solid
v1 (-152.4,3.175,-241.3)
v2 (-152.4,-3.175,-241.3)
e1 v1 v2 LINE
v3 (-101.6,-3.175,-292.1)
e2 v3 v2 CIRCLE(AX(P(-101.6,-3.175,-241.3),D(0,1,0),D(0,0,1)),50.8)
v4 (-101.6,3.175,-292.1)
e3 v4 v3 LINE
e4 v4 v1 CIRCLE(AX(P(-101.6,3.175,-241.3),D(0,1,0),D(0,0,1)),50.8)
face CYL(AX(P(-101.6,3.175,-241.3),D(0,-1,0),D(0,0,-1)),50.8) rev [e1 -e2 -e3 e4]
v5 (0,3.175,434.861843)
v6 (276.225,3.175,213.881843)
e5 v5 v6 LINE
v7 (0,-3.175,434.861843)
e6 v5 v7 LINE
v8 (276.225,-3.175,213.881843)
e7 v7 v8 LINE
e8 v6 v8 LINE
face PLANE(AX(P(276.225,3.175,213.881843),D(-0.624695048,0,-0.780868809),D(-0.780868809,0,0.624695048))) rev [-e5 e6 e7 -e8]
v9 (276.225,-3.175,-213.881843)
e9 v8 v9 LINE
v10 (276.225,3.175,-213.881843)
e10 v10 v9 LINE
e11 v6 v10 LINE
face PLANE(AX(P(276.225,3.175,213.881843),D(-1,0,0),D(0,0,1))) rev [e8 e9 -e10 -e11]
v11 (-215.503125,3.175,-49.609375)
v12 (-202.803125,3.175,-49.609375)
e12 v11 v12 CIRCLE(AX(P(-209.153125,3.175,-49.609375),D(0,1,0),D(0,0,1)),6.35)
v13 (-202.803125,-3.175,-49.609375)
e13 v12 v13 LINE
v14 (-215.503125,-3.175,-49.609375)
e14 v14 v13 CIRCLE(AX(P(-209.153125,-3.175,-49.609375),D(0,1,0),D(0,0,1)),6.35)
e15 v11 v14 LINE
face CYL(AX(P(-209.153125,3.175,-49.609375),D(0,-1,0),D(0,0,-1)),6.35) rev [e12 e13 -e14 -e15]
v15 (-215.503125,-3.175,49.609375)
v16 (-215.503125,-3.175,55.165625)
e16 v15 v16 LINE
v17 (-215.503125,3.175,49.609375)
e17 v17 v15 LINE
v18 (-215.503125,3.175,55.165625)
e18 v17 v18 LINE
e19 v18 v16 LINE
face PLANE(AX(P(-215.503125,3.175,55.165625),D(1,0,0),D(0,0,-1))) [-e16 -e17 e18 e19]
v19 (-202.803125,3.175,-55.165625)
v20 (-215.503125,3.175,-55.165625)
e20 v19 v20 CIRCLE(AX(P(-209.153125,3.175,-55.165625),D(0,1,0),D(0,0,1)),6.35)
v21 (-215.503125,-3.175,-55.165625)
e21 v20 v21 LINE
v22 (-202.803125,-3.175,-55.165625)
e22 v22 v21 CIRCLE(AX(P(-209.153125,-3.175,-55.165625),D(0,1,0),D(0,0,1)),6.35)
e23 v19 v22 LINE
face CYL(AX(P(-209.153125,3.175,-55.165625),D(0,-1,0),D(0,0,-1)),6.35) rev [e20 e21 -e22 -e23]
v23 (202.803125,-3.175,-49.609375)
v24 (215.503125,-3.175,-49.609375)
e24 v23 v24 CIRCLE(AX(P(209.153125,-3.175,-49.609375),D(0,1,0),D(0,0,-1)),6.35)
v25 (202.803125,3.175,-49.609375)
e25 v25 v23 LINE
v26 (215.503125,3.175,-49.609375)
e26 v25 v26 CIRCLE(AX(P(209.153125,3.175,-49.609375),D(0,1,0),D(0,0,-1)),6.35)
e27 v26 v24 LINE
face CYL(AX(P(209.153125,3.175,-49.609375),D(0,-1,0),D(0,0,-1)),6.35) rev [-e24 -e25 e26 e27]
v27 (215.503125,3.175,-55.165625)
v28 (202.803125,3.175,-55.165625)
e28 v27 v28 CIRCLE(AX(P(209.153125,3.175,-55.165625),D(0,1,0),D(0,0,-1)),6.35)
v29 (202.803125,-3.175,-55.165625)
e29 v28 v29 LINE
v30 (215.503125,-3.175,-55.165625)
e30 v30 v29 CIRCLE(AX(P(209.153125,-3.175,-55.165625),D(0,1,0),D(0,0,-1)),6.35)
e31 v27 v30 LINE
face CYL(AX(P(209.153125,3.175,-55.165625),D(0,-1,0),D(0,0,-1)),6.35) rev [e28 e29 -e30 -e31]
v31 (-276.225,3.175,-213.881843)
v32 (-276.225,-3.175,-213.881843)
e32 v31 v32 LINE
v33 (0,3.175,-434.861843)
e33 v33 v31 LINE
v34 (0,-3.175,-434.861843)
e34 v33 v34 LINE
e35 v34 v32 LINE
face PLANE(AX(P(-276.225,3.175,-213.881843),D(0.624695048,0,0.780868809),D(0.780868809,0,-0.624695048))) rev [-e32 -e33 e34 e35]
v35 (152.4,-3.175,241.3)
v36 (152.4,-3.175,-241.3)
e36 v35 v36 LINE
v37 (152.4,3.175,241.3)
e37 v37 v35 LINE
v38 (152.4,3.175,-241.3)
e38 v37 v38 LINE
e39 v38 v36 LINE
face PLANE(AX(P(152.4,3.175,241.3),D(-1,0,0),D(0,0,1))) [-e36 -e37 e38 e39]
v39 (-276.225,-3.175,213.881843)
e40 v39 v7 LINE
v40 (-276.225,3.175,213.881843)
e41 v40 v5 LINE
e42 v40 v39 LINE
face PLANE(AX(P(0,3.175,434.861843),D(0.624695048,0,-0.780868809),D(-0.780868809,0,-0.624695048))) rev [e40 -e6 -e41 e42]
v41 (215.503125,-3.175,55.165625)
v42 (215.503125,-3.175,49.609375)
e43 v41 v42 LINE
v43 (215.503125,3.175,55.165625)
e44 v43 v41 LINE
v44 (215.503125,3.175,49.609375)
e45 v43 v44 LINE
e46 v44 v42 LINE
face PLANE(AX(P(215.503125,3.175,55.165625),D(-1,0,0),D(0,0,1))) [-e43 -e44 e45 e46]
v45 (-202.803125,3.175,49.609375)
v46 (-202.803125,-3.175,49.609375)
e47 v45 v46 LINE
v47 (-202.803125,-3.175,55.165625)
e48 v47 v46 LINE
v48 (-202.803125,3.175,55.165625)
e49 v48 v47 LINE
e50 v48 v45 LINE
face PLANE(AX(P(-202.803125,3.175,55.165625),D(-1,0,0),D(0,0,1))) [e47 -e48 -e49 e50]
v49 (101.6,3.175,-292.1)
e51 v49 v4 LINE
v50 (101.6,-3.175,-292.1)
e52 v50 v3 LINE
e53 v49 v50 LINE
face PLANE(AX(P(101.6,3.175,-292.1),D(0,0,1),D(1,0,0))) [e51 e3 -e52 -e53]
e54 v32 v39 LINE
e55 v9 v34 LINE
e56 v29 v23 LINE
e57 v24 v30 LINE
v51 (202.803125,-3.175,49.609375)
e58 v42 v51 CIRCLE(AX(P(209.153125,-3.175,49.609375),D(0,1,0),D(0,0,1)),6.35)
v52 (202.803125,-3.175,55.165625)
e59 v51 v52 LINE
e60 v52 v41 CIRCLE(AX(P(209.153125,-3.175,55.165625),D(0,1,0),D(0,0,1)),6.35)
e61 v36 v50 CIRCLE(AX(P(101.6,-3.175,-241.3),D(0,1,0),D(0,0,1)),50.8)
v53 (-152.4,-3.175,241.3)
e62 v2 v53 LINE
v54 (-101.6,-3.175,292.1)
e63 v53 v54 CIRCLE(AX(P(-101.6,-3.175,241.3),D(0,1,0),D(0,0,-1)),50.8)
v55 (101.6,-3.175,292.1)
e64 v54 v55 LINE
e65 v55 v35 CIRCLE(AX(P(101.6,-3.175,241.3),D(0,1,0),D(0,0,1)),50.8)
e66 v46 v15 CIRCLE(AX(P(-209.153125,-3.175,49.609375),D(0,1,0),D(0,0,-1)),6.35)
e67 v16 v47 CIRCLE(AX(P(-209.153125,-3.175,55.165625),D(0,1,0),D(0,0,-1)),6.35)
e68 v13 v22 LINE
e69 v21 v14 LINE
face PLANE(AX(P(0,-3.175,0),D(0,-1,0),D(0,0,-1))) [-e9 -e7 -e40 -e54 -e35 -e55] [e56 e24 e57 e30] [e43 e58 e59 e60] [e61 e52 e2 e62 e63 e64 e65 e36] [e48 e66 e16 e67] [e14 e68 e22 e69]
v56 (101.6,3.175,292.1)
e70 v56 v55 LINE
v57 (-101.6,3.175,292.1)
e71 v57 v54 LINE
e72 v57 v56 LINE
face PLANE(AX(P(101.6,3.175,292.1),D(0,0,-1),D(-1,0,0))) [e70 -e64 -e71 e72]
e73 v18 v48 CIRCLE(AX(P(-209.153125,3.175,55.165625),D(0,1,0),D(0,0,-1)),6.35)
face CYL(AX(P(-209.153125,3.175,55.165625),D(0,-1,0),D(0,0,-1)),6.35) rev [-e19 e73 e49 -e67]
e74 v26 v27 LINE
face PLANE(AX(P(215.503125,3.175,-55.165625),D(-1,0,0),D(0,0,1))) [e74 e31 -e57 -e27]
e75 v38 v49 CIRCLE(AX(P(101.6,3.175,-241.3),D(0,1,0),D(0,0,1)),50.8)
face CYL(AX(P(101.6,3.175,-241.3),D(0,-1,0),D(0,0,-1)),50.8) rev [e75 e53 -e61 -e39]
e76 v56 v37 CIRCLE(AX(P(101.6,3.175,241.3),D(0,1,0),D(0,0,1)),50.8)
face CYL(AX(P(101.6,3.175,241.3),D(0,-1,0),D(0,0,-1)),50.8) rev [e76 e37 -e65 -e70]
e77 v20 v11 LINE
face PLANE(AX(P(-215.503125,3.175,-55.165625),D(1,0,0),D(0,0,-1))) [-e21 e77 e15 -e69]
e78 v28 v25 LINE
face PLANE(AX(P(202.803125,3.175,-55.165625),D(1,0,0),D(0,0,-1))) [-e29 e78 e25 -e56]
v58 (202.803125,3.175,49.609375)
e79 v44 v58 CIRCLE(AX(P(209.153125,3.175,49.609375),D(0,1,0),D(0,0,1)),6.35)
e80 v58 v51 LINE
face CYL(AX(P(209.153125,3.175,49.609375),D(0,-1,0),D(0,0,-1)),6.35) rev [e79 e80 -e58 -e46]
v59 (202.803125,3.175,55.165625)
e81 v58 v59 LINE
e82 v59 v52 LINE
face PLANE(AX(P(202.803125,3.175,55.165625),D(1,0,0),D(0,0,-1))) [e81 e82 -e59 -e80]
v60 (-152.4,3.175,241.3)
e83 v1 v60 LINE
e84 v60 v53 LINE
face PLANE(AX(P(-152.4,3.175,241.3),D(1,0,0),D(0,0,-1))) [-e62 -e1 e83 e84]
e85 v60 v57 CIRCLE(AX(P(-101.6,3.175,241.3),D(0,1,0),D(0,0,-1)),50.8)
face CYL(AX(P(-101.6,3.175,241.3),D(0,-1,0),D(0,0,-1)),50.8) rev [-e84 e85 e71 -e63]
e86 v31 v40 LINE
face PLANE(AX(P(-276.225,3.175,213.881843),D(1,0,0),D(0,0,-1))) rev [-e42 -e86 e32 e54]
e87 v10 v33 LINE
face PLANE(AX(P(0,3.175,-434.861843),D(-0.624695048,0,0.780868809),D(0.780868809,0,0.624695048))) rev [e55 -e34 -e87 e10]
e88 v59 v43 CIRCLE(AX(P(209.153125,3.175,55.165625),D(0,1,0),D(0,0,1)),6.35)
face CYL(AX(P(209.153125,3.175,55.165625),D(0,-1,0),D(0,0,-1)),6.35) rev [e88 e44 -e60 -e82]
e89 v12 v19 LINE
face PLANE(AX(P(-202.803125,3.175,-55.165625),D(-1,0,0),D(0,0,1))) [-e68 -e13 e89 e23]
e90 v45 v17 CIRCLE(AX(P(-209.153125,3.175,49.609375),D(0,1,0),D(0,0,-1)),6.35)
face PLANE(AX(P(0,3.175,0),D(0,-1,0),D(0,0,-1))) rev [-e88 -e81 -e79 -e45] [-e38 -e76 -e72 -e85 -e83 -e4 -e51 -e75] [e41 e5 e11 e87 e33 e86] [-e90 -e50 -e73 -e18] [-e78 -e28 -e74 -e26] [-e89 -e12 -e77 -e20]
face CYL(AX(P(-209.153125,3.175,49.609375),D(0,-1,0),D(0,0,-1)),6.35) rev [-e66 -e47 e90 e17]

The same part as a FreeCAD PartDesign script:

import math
import FreeCAD as App
import Part
import Sketcher
Q = App.Units.Quantity


def add_polygon(sketch, points):
    """Adds a closed chain of lines whose ends are joined by coincident constraints."""
    first, n = sketch.GeometryCount, len(points)
    for a, b in zip(points, points[1:] + points[:1]):
        sketch.addGeometry(Part.LineSegment(App.Vector(*a, 0), App.Vector(*b, 0)), False)
    for i in range(n):
        sketch.addConstraint(Sketcher.Constraint("Coincident", first + i, 2, first + (i + 1) % n, 1))

doc = App.newDocument("Part")
body = doc.addObject("PartDesign::Body", "Body")

# Sketch on XZ plane
sketch1 = doc.addObject("Sketcher::SketchObject", "Sketch")
body.addObject(sketch1)
sketch1.AttachmentSupport = (doc.XZ_Plane, [""])
sketch1.MapMode = "FlatFace"
add_polygon(sketch1, [(0, -435), (-276, -214), (-276, 214), (0, 435), (276, 214), (276, -214)])  # lines 0-5
sketch1.addGeometry(Part.LineSegment(App.Vector(203, 55, 0), App.Vector(203, 50, 0)), False)  # 6
sketch1.addGeometry(Part.ArcOfCircle(Part.Circle(App.Vector(209, 50, 0), App.Vector(0, 0, 1), 6), math.radians(180), math.radians(360)), False)  # 7
sketch1.addGeometry(Part.LineSegment(App.Vector(216, 50, 0), App.Vector(216, 55, 0)), False)  # 8
sketch1.addGeometry(Part.ArcOfCircle(Part.Circle(App.Vector(209, 55, 0), App.Vector(0, 0, 1), 6), math.radians(0), math.radians(180)), False)  # 9
sketch1.addGeometry(Part.ArcOfCircle(Part.Circle(App.Vector(-209, 55, 0), App.Vector(0, 0, 1), 6), math.radians(0), math.radians(180)), False)  # 10
sketch1.addGeometry(Part.LineSegment(App.Vector(-216, 55, 0), App.Vector(-216, 50, 0)), False)  # 11
sketch1.addGeometry(Part.ArcOfCircle(Part.Circle(App.Vector(-209, 50, 0), App.Vector(0, 0, 1), 6), math.radians(180), math.radians(360)), False)  # 12
sketch1.addGeometry(Part.LineSegment(App.Vector(-203, 50, 0), App.Vector(-203, 55, 0)), False)  # 13
sketch1.addGeometry(Part.ArcOfCircle(Part.Circle(App.Vector(209, -55, 0), App.Vector(0, 0, 1), 6), math.radians(180), math.radians(360)), False)  # 14
sketch1.addGeometry(Part.LineSegment(App.Vector(216, -55, 0), App.Vector(216, -50, 0)), False)  # 15
sketch1.addGeometry(Part.ArcOfCircle(Part.Circle(App.Vector(209, -50, 0), App.Vector(0, 0, 1), 6), math.radians(0), math.radians(180)), False)  # 16
sketch1.addGeometry(Part.LineSegment(App.Vector(203, -50, 0), App.Vector(203, -55, 0)), False)  # 17
sketch1.addGeometry(Part.LineSegment(App.Vector(102, 292, 0), App.Vector(-102, 292, 0)), False)  # 18
sketch1.addGeometry(Part.ArcOfCircle(Part.Circle(App.Vector(-102, 241, 0), App.Vector(0, 0, 1), 51), math.radians(90), math.radians(180)), False)  # 19
sketch1.addGeometry(Part.LineSegment(App.Vector(-152, 241, 0), App.Vector(-152, -241, 0)), False)  # 20
sketch1.addGeometry(Part.ArcOfCircle(Part.Circle(App.Vector(-102, -241, 0), App.Vector(0, 0, 1), 51), math.radians(-180), math.radians(-90)), False)  # 21
sketch1.addGeometry(Part.LineSegment(App.Vector(-102, -292, 0), App.Vector(102, -292, 0)), False)  # 22
sketch1.addGeometry(Part.ArcOfCircle(Part.Circle(App.Vector(102, -241, 0), App.Vector(0, 0, 1), 51), math.radians(-90), math.radians(0)), False)  # 23
sketch1.addGeometry(Part.LineSegment(App.Vector(152, -241, 0), App.Vector(152, 241, 0)), False)  # 24
sketch1.addGeometry(Part.ArcOfCircle(Part.Circle(App.Vector(102, 241, 0), App.Vector(0, 0, 1), 51), math.radians(0), math.radians(90)), False)  # 25
sketch1.addGeometry(Part.LineSegment(App.Vector(-203, -55, 0), App.Vector(-203, -50, 0)), False)  # 26
sketch1.addGeometry(Part.ArcOfCircle(Part.Circle(App.Vector(-209, -50, 0), App.Vector(0, 0, 1), 6), math.radians(0), math.radians(180)), False)  # 27
sketch1.addGeometry(Part.LineSegment(App.Vector(-216, -50, 0), App.Vector(-216, -55, 0)), False)  # 28
sketch1.addGeometry(Part.ArcOfCircle(Part.Circle(App.Vector(-209, -55, 0), App.Vector(0, 0, 1), 6), math.radians(180), math.radians(360)), False)  # 29
sketch1.addConstraint([
    Sketcher.Constraint("Tangent", 6, 2, 7, 1),
    Sketcher.Constraint("Tangent", 7, 2, 8, 1),
    Sketcher.Constraint("Tangent", 8, 2, 9, 1),
    Sketcher.Constraint("Tangent", 9, 2, 6, 1),
    Sketcher.Constraint("Tangent", 10, 2, 11, 1),
    Sketcher.Constraint("Tangent", 11, 2, 12, 1),
    Sketcher.Constraint("Tangent", 12, 2, 13, 1),
    Sketcher.Constraint("Tangent", 13, 2, 10, 1),
    Sketcher.Constraint("Tangent", 14, 2, 15, 1),
    Sketcher.Constraint("Tangent", 15, 2, 16, 1),
    Sketcher.Constraint("Tangent", 16, 2, 17, 1),
    Sketcher.Constraint("Tangent", 17, 2, 14, 1),
    Sketcher.Constraint("Tangent", 18, 2, 19, 1),
    Sketcher.Constraint("Tangent", 19, 2, 20, 1),
    Sketcher.Constraint("Tangent", 20, 2, 21, 1),
    Sketcher.Constraint("Tangent", 21, 2, 22, 1),
    Sketcher.Constraint("Tangent", 22, 2, 23, 1),
    Sketcher.Constraint("Tangent", 23, 2, 24, 1),
    Sketcher.Constraint("Tangent", 24, 2, 25, 1),
    Sketcher.Constraint("Tangent", 25, 2, 18, 1),
    Sketcher.Constraint("Tangent", 26, 2, 27, 1),
    Sketcher.Constraint("Tangent", 27, 2, 28, 1),
    Sketcher.Constraint("Tangent", 28, 2, 29, 1),
    Sketcher.Constraint("Tangent", 29, 2, 26, 1),
    Sketcher.Constraint("Vertical", 1),
    Sketcher.Constraint("Vertical", 4),
    Sketcher.Constraint("Vertical", 6),
    Sketcher.Constraint("Vertical", 8),
    Sketcher.Constraint("Vertical", 11),
    Sketcher.Constraint("Vertical", 13),
    Sketcher.Constraint("Vertical", 15),
    Sketcher.Constraint("Vertical", 17),
    Sketcher.Constraint("Horizontal", 18),
    Sketcher.Constraint("Vertical", 20),
    Sketcher.Constraint("Horizontal", 22),
    Sketcher.Constraint("Vertical", 24),
    Sketcher.Constraint("Vertical", 26),
    Sketcher.Constraint("Vertical", 28),
    Sketcher.Constraint("Equal", 9, 10),
    Sketcher.Constraint("Equal", 12, 14),
    Sketcher.Constraint("Equal", 19, 21),
    Sketcher.Constraint("Equal", 21, 23),
    Sketcher.Constraint("Equal", 23, 25),
    Sketcher.Constraint("Equal", 16, 27),
    Sketcher.Constraint("Symmetric", 10, 3, 14, 3, -1, 1),
    Sketcher.Constraint("Symmetric", 19, 3, 23, 3, -1, 1),
    Sketcher.Constraint("Symmetric", 7, 3, 27, 3, -1, 1),
    Sketcher.Constraint("Symmetric", 0, 2, 3, 2, -1, 1),
    Sketcher.Constraint("Symmetric", 2, 2, 5, 2, -1, 1),
    Sketcher.Constraint("Symmetric", 9, 3, 10, 3, -2),
    Sketcher.Constraint("PointOnObject", 2, 2, -2),
    Sketcher.Constraint("Parallel", 2, 5),
    Sketcher.Constraint("Horizontal", 7, 3, 12, 3),
    Sketcher.Constraint("Horizontal", 16, 3, 27, 3),
    Sketcher.Constraint("Horizontal", 14, 3, 29, 3),
    Sketcher.Constraint("Horizontal", 1, 2, 3, 2),
    Sketcher.Constraint("Radius", 19, Q("2 in")),
    Sketcher.Constraint("DistanceX", 18, 2, 18, 1, Q("8 in")),
    Sketcher.Constraint("DistanceY", 20, 2, 20, 1, Q("19 in")),
    Sketcher.Constraint("Radius", 7, Q("0.25 in")),
    Sketcher.Constraint("DistanceY", 1, 2, 2, 2, Q("8.7 in")),
    Sketcher.Constraint("DistanceY", 6, 2, 6, 1, Q("0.21875 in")),
    Sketcher.Constraint("DistanceX", -1, 1, 7, 3, Q("8.234375 in")),
    Sketcher.Constraint("DistanceY", -1, 1, 7, 3, Q("1.953125 in")),
    Sketcher.Constraint("DistanceX", 0, 2, -1, 1, Q("10.875 in")),
    Sketcher.Constraint("DistanceY", 1, 1, 1, 2, 427.763686),
])
pad1 = doc.addObject("PartDesign::Pad", "Pad")
body.addObject(pad1)
pad1.Profile = sketch1
pad1.Length = Q("0.25 in")
pad1.Midplane = True

doc.recompute()
